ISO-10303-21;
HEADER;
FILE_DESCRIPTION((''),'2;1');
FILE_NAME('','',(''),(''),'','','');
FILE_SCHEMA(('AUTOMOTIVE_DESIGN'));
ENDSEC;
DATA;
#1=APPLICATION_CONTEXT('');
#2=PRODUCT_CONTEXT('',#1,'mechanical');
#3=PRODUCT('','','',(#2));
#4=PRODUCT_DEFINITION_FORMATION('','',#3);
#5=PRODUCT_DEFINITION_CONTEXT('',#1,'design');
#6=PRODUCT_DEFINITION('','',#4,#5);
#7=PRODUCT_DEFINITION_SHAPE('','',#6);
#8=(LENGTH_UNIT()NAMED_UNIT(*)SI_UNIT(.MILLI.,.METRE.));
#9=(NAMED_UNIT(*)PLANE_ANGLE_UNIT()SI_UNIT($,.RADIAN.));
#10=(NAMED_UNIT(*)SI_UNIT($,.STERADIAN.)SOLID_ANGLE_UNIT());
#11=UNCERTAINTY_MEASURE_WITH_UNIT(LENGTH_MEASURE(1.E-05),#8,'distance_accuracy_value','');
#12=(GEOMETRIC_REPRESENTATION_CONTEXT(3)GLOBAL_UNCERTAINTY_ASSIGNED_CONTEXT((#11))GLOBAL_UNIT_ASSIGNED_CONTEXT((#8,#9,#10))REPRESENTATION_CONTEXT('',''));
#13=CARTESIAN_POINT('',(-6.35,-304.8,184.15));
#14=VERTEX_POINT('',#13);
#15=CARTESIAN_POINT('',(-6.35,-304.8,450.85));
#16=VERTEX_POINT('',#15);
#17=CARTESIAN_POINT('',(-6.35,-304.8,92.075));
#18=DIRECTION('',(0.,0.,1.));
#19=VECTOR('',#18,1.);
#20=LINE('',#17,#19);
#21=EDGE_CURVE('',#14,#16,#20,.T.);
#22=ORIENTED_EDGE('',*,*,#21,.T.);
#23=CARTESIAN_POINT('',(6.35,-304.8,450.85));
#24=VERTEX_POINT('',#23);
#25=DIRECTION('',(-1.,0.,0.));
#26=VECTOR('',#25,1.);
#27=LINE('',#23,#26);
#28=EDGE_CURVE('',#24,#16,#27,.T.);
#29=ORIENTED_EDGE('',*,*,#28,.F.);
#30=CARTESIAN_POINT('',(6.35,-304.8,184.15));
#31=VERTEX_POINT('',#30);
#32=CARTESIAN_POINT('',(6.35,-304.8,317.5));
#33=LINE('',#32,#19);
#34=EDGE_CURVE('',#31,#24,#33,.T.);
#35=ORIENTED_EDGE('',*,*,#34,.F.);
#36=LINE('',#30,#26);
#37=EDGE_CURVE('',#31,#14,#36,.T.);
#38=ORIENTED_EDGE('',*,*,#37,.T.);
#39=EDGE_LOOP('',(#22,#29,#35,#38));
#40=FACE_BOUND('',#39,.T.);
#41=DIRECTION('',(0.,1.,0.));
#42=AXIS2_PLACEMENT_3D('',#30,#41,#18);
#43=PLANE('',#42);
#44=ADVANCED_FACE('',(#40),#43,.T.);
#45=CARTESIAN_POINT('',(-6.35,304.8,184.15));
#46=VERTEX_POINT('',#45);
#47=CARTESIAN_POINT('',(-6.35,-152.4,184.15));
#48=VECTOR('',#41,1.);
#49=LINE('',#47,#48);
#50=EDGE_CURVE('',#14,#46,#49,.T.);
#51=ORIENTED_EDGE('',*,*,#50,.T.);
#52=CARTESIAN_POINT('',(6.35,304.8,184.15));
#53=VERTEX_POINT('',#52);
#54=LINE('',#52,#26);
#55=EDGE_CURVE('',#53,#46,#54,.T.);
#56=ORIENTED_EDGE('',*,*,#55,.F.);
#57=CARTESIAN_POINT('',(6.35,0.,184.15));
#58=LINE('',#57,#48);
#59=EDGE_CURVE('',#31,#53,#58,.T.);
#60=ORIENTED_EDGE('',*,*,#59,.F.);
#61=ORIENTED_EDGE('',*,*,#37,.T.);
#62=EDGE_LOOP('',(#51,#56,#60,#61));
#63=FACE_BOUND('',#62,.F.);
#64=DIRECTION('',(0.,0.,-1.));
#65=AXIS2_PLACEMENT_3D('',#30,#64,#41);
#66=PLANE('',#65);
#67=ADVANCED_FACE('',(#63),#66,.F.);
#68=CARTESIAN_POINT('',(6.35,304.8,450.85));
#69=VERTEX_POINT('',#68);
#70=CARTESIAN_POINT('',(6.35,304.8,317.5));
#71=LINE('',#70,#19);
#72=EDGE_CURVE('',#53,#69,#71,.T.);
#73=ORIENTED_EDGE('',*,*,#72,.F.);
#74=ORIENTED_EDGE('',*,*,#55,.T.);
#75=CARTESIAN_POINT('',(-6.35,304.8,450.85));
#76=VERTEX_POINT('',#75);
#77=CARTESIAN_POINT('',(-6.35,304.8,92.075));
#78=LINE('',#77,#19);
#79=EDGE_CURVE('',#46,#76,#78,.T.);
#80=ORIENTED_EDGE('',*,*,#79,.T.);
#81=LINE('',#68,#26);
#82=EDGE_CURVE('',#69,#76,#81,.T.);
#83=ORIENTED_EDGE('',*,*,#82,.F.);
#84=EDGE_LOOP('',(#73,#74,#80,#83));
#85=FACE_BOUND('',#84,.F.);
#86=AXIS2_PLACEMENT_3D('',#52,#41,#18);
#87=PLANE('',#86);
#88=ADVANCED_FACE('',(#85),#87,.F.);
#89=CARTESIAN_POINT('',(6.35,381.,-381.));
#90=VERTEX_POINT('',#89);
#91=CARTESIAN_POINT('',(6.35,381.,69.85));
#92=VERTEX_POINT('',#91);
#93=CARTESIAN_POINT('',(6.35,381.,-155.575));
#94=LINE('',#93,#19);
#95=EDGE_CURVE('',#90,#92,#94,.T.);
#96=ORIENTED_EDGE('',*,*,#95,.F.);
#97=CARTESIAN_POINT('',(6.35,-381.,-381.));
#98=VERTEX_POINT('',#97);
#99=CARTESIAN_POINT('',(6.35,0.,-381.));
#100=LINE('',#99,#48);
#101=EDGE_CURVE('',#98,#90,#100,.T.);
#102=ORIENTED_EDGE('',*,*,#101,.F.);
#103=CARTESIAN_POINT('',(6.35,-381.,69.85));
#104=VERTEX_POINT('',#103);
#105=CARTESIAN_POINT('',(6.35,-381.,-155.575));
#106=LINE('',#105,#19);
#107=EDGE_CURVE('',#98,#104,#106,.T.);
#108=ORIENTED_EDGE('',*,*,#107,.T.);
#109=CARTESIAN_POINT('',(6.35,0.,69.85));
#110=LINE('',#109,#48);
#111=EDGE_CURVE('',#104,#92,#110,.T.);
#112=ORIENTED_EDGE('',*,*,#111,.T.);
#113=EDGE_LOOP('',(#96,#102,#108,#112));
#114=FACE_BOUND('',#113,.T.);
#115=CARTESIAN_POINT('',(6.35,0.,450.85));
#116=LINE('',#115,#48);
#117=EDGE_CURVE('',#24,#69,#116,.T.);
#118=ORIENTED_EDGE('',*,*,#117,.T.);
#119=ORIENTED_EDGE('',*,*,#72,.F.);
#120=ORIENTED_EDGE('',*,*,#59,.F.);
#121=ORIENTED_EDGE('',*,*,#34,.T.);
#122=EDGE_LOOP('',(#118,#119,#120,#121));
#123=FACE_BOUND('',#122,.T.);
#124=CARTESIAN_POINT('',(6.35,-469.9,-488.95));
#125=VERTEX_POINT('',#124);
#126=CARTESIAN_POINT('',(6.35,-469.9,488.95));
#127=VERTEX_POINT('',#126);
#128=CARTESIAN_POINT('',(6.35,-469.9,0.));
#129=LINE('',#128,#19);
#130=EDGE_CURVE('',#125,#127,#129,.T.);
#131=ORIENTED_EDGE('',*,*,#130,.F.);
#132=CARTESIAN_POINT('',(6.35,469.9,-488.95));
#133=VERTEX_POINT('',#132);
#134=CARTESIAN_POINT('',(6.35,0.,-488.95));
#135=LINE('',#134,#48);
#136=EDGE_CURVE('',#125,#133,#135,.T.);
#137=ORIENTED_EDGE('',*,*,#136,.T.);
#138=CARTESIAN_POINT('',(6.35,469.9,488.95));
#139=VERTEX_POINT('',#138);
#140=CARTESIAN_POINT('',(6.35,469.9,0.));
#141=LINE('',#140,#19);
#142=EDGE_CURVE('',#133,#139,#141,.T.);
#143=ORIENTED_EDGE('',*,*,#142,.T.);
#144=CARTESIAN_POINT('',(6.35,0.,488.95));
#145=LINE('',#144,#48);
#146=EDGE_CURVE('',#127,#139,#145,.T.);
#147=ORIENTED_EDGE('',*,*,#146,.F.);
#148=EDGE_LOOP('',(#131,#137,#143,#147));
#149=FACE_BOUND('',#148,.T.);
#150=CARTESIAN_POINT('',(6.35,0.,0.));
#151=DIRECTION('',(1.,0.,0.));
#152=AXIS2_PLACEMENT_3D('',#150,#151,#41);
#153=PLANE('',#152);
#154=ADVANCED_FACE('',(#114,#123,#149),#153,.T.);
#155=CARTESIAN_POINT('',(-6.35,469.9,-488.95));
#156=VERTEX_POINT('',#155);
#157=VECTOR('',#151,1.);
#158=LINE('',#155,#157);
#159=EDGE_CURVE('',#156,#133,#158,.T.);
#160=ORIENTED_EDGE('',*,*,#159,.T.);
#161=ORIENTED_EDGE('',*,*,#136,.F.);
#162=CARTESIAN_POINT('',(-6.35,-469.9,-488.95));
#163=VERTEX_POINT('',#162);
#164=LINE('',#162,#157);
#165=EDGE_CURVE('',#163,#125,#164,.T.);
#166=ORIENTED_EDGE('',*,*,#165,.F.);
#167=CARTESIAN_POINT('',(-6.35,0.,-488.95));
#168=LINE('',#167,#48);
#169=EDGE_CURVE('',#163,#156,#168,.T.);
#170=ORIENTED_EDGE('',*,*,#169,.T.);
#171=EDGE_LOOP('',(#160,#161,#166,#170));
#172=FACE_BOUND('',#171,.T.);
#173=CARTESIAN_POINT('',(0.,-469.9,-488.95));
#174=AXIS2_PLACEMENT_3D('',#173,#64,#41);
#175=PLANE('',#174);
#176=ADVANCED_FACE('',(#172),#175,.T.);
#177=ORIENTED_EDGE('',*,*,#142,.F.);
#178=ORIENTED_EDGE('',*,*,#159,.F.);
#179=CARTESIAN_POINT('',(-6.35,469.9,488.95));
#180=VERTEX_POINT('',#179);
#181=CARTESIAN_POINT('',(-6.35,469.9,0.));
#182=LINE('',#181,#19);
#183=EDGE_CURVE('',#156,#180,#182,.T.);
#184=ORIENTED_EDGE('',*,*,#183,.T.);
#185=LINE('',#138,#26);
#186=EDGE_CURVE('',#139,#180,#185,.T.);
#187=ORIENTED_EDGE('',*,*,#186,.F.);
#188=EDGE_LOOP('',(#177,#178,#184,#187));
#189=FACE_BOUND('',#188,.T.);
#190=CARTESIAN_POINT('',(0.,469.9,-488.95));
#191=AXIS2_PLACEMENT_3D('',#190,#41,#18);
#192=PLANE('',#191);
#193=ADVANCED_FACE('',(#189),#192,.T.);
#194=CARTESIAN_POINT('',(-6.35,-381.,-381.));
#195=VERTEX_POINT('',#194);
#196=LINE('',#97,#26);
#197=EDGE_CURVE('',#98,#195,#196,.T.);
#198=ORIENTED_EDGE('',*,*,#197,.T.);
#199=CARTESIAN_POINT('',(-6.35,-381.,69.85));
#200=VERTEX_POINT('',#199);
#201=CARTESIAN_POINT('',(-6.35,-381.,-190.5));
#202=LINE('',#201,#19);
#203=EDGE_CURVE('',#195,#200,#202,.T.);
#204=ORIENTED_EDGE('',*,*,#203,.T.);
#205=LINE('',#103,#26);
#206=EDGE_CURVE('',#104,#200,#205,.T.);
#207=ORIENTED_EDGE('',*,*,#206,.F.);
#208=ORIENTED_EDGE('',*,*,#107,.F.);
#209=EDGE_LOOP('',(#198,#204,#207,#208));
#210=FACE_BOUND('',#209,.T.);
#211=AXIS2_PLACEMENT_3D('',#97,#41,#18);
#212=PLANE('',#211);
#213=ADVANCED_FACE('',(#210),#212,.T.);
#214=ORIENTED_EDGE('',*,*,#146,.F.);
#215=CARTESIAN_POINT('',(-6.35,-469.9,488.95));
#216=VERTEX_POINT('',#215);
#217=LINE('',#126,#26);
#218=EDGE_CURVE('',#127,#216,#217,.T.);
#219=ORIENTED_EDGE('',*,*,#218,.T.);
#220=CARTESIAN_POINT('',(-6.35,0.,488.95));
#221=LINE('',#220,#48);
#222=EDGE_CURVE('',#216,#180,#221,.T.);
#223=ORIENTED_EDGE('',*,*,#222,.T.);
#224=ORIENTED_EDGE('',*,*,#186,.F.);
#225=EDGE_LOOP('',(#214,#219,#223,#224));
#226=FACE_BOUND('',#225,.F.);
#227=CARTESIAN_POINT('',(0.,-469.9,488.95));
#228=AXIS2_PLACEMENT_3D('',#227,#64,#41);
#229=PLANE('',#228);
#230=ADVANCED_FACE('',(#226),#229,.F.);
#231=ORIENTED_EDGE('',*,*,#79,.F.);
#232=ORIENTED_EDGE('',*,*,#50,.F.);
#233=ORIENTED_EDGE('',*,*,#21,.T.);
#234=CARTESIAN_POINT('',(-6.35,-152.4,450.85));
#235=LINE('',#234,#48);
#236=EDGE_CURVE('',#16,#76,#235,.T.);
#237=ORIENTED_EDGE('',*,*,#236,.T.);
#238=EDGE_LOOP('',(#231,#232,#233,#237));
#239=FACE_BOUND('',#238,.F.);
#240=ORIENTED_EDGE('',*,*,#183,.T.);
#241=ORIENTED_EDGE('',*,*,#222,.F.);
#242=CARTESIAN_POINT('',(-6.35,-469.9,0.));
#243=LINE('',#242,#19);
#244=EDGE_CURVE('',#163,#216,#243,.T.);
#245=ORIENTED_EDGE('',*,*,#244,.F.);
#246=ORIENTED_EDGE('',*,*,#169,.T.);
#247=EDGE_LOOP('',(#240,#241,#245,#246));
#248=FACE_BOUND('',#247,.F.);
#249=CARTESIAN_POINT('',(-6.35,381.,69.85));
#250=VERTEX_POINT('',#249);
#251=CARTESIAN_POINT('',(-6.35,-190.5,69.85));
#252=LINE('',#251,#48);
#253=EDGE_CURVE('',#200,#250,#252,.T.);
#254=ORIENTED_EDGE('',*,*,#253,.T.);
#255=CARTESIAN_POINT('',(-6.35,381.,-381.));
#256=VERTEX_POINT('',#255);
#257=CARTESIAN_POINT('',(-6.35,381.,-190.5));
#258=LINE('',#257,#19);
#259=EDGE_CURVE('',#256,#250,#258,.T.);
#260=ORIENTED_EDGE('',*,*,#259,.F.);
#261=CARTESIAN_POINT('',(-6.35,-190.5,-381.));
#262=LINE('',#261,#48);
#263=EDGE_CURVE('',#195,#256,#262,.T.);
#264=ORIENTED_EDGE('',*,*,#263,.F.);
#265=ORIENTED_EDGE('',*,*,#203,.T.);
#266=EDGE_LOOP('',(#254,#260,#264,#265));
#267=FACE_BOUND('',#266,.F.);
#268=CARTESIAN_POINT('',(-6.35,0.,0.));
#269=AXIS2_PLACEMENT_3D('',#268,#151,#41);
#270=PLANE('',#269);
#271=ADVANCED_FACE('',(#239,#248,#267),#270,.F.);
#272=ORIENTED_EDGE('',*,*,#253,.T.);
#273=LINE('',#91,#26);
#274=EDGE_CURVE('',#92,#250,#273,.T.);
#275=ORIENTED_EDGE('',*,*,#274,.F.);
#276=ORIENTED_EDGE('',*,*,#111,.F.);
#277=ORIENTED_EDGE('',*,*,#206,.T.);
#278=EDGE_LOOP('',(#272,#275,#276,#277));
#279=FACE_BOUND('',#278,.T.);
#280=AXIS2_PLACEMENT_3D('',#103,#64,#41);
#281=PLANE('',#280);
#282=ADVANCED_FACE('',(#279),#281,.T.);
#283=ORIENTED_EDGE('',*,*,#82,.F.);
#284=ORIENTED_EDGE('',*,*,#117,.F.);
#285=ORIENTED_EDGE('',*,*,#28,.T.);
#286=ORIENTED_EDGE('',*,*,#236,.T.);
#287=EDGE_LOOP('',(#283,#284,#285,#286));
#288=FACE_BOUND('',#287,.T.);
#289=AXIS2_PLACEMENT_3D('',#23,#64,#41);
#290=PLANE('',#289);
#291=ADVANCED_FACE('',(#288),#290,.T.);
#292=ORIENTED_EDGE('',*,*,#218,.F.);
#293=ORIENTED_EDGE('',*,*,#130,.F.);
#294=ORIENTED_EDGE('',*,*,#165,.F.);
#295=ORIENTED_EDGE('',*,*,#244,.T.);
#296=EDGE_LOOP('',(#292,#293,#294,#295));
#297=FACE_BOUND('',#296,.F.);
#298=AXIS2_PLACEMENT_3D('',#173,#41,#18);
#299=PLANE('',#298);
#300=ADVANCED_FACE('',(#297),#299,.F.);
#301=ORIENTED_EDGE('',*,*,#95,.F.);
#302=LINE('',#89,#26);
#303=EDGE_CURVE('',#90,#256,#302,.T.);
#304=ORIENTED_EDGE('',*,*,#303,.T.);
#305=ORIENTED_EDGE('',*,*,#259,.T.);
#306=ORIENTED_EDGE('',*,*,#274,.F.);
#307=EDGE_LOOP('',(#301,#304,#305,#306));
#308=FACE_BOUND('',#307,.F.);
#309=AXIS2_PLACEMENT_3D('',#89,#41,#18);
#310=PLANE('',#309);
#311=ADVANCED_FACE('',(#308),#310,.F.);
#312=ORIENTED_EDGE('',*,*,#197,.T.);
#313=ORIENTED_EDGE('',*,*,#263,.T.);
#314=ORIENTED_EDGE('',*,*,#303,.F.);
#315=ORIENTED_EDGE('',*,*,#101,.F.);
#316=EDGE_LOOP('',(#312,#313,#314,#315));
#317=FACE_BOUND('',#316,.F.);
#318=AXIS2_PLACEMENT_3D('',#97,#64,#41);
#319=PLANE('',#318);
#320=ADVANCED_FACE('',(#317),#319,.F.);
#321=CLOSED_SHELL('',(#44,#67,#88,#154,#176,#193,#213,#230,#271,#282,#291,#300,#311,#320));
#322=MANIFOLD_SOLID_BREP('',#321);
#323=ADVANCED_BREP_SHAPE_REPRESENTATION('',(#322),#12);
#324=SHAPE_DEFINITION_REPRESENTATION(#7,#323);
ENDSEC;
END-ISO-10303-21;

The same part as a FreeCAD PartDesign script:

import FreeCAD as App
import Part
import Sketcher
Q = App.Units.Quantity

doc = App.newDocument("Part")
body = doc.addObject("PartDesign::Body", "Body")

# Sketch on YZ plane
sketch1 = body.newObject("Sketcher::SketchObject", "Sketch")
sketch1.AttachmentSupport = (doc.getObject("YZ_Plane"), [""])
sketch1.MapMode = "FlatFace"
sketch1.addGeometry([
    Part.LineSegment(App.Vector(-470, 489, 0), App.Vector(-470, -489, 0)),
    Part.LineSegment(App.Vector(-470, -489, 0), App.Vector(470, -489, 0)),
    Part.LineSegment(App.Vector(470, -489, 0), App.Vector(470, 489, 0)),
    Part.LineSegment(App.Vector(470, 489, 0), App.Vector(-470, 489, 0)),
], False)
sketch1.addConstraint([
    Sketcher.Constraint("Coincident", 0, 2, 1, 1),
    Sketcher.Constraint("Coincident", 1, 2, 2, 1),
    Sketcher.Constraint("Coincident", 2, 2, 3, 1),
    Sketcher.Constraint("Coincident", 3, 2, 0, 1),
    Sketcher.Constraint("Vertical", 0),
    Sketcher.Constraint("Horizontal", 1),
    Sketcher.Constraint("Vertical", 2),
    Sketcher.Constraint("Horizontal", 3),
    Sketcher.Constraint("Symmetric", 0, 2, 2, 2, -1, 1),
    Sketcher.Constraint("DistanceX", 1, 1, 1, 2, Q("37 in")),
    Sketcher.Constraint("DistanceY", 0, 2, 0, 1, Q("38.5 in")),
])
pad1 = body.newObject("PartDesign::Pad", "Pad")
pad1.Profile = sketch1
pad1.Length = Q("0.5 in")
pad1.Midplane = True

# Sketch on YZ plane
sketch2 = body.newObject("Sketcher::SketchObject", "Sketch001")
sketch2.AttachmentSupport = (doc.getObject("YZ_Plane"), [""])
sketch2.MapMode = "FlatFace"
sketch2.AttachmentOffset = App.Placement(App.Vector(0, 0, 0.25 * 25.4), App.Rotation())
sketch2.addGeometry([
    Part.LineSegment(App.Vector(-381, 70, 0), App.Vector(-381, -381, 0)),  # 0
    Part.LineSegment(App.Vector(-381, -381, 0), App.Vector(381, -381, 0)),  # 1
    Part.LineSegment(App.Vector(381, -381, 0), App.Vector(381, 70, 0)),  # 2
    Part.LineSegment(App.Vector(381, 70, 0), App.Vector(-381, 70, 0)),  # 3
    Part.LineSegment(App.Vector(-305, 451, 0), App.Vector(-305, 184, 0)),  # 4
    Part.LineSegment(App.Vector(-305, 184, 0), App.Vector(305, 184, 0)),  # 5
    Part.LineSegment(App.Vector(305, 184, 0), App.Vector(305, 451, 0)),  # 6
    Part.LineSegment(App.Vector(305, 451, 0), App.Vector(-305, 451, 0)),  # 7
], False)
sketch2.addConstraint([
    Sketcher.Constraint("Coincident", 0, 2, 1, 1),
    Sketcher.Constraint("Coincident", 1, 2, 2, 1),
    Sketcher.Constraint("Coincident", 2, 2, 3, 1),
    Sketcher.Constraint("Coincident", 3, 2, 0, 1),
    Sketcher.Constraint("Coincident", 4, 2, 5, 1),
    Sketcher.Constraint("Coincident", 5, 2, 6, 1),
    Sketcher.Constraint("Coincident", 6, 2, 7, 1),
    Sketcher.Constraint("Coincident", 7, 2, 4, 1),
    Sketcher.Constraint("Vertical", 0),
    Sketcher.Constraint("Horizontal", 1),
    Sketcher.Constraint("Vertical", 2),
    Sketcher.Constraint("Horizontal", 3),
    Sketcher.Constraint("Vertical", 4),
    Sketcher.Constraint("Horizontal", 5),
    Sketcher.Constraint("Vertical", 6),
    Sketcher.Constraint("Horizontal", 7),
    Sketcher.Constraint("DistanceX", 1, 1, 1, 2, Q("30 in")),
    Sketcher.Constraint("DistanceX", 5, 1, 5, 2, Q("24 in")),
    Sketcher.Constraint("DistanceY", 4, 2, 4, 1, Q("10.5 in")),
    Sketcher.Constraint("DistanceX", 0, 2, -1, 1, Q("15 in")),
    Sketcher.Constraint("DistanceY", 0, 2, -1, 1, Q("15 in")),
    Sketcher.Constraint("DistanceX", 4, 2, -1, 1, Q("12 in")),
    Sketcher.Constraint("DistanceY", 2, 2, 6, 2, Q("15 in")),
    Sketcher.Constraint("DistanceY", 0, 2, 0, 1, Q("17.75 in")),
])
pocket1 = body.newObject("PartDesign::Pocket", "Pocket")
pocket1.Profile = sketch2
pocket1.Type = "ThroughAll"

doc.recompute()
